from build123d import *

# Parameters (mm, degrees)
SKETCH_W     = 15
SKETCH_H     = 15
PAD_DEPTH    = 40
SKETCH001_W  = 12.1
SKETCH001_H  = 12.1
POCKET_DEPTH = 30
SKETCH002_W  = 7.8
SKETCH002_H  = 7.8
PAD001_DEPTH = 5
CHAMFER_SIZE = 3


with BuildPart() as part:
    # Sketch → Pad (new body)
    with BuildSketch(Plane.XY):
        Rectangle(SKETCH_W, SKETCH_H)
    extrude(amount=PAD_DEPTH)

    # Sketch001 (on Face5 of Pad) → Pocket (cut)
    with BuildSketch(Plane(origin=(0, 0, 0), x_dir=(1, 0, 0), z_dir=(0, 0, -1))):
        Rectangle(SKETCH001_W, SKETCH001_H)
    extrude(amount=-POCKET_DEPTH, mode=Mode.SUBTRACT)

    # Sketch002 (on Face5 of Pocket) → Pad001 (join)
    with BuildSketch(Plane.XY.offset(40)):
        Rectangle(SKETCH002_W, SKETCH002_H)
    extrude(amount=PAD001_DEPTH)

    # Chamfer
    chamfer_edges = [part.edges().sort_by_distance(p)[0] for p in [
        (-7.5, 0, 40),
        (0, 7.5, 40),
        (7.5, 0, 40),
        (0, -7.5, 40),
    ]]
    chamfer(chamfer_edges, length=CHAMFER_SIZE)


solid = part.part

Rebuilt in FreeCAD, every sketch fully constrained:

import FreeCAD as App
import Part
import Sketcher
Q = App.Units.Quantity


def edges_at(feature, points):
    """Names of the edges that pass closest to the given points."""
    edges = feature.Shape.Edges
    near = lambda p: min(range(len(edges)), key=lambda i: edges[i].distToShape(Part.Vertex(*p))[0])
    return sorted({f"Edge{near(p) + 1}" for p in points})


def add_polygon(sketch, points):
    """Adds a closed chain of lines whose ends are joined by coincident constraints."""
    first, n = sketch.GeometryCount, len(points)
    for a, b in zip(points, points[1:] + points[:1]):
        sketch.addGeometry(Part.LineSegment(App.Vector(*a, 0), App.Vector(*b, 0)), False)
    for i in range(n):
        sketch.addConstraint(Sketcher.Constraint("Coincident", first + i, 2, first + (i + 1) % n, 1))

doc = App.newDocument("Part")
body = doc.addObject("PartDesign::Body", "Body")

sketch1 = body.newObject("Sketcher::SketchObject", "Sketch")
sketch1.AttachmentSupport = (doc.getObject("XY_Plane"), [""])
sketch1.MapMode = "FlatFace"
add_polygon(sketch1, [(-7.5, 7.5), (-7.5, -7.5), (7.5, -7.5), (7.5, 7.5)])
sketch1.addConstraint([
    Sketcher.Constraint("Vertical", 0),
    Sketcher.Constraint("Horizontal", 1),
    Sketcher.Constraint("Vertical", 2),
    Sketcher.Constraint("Horizontal", 3),
    Sketcher.Constraint("Symmetric", 0, 2, 2, 2, -1, 1),
    Sketcher.Constraint("Equal", 3, 0),
    Sketcher.Constraint("DistanceX", 1, 1, 1, 2, Q("15 mm")),
])
pad1 = body.newObject("PartDesign::Pad", "Pad")
pad1.Profile = sketch1
pad1.Length = 40

sketch2 = body.newObject("Sketcher::SketchObject", "Sketch001")
sketch2.AttachmentSupport = (doc.getObject("XY_Plane"), [""])
sketch2.MapMode = "FlatFace"
add_polygon(sketch2, [(-6.05, -6.05), (-6.05, 6.05), (6.05, 6.05), (6.05, -6.05)])
sketch2.addConstraint([
    Sketcher.Constraint("Vertical", 0),
    Sketcher.Constraint("Horizontal", 1),
    Sketcher.Constraint("Vertical", 2),
    Sketcher.Constraint("Horizontal", 3),
    Sketcher.Constraint("Symmetric", 0, 2, 2, 2, -1, 1),
    Sketcher.Constraint("Equal", 3, 0),
    Sketcher.Constraint("DistanceX", 1, 1, 1, 2, Q("12.1 mm")),
])
pocket1 = body.newObject("PartDesign::Pocket", "Pocket")
pocket1.Profile = sketch2
pocket1.Length = 30
pocket1.Reversed = True

sketch3 = body.newObject("Sketcher::SketchObject", "Sketch002")
sketch3.AttachmentSupport = (doc.getObject("XY_Plane"), [""])
sketch3.MapMode = "FlatFace"
sketch3.AttachmentOffset = App.Placement(App.Vector(0, 0, 40), App.Rotation())
add_polygon(sketch3, [(-3.9, 3.9), (-3.9, -3.9), (3.9, -3.9), (3.9, 3.9)])
sketch3.addConstraint([
    Sketcher.Constraint("Vertical", 0),
    Sketcher.Constraint("Horizontal", 1),
    Sketcher.Constraint("Vertical", 2),
    Sketcher.Constraint("Horizontal", 3),
    Sketcher.Constraint("Symmetric", 0, 2, 2, 2, -1, 1),
    Sketcher.Constraint("Equal", 3, 0),
    Sketcher.Constraint("DistanceX", 1, 1, 1, 2, Q("7.8 mm")),
])
pad2 = body.newObject("PartDesign::Pad", "Pad001")
pad2.Profile = sketch3
pad2.Length = 5
doc.recompute()

chamfer = body.newObject("PartDesign::Chamfer", "Chamfer")
chamfer.Base = (pad2, edges_at(pad2, [
    (-7.5, 0, 40),
    (0, 7.5, 40),
    (7.5, 0, 40),
    (0, -7.5, 40),
]))
chamfer.Size = 3

doc.recompute()
